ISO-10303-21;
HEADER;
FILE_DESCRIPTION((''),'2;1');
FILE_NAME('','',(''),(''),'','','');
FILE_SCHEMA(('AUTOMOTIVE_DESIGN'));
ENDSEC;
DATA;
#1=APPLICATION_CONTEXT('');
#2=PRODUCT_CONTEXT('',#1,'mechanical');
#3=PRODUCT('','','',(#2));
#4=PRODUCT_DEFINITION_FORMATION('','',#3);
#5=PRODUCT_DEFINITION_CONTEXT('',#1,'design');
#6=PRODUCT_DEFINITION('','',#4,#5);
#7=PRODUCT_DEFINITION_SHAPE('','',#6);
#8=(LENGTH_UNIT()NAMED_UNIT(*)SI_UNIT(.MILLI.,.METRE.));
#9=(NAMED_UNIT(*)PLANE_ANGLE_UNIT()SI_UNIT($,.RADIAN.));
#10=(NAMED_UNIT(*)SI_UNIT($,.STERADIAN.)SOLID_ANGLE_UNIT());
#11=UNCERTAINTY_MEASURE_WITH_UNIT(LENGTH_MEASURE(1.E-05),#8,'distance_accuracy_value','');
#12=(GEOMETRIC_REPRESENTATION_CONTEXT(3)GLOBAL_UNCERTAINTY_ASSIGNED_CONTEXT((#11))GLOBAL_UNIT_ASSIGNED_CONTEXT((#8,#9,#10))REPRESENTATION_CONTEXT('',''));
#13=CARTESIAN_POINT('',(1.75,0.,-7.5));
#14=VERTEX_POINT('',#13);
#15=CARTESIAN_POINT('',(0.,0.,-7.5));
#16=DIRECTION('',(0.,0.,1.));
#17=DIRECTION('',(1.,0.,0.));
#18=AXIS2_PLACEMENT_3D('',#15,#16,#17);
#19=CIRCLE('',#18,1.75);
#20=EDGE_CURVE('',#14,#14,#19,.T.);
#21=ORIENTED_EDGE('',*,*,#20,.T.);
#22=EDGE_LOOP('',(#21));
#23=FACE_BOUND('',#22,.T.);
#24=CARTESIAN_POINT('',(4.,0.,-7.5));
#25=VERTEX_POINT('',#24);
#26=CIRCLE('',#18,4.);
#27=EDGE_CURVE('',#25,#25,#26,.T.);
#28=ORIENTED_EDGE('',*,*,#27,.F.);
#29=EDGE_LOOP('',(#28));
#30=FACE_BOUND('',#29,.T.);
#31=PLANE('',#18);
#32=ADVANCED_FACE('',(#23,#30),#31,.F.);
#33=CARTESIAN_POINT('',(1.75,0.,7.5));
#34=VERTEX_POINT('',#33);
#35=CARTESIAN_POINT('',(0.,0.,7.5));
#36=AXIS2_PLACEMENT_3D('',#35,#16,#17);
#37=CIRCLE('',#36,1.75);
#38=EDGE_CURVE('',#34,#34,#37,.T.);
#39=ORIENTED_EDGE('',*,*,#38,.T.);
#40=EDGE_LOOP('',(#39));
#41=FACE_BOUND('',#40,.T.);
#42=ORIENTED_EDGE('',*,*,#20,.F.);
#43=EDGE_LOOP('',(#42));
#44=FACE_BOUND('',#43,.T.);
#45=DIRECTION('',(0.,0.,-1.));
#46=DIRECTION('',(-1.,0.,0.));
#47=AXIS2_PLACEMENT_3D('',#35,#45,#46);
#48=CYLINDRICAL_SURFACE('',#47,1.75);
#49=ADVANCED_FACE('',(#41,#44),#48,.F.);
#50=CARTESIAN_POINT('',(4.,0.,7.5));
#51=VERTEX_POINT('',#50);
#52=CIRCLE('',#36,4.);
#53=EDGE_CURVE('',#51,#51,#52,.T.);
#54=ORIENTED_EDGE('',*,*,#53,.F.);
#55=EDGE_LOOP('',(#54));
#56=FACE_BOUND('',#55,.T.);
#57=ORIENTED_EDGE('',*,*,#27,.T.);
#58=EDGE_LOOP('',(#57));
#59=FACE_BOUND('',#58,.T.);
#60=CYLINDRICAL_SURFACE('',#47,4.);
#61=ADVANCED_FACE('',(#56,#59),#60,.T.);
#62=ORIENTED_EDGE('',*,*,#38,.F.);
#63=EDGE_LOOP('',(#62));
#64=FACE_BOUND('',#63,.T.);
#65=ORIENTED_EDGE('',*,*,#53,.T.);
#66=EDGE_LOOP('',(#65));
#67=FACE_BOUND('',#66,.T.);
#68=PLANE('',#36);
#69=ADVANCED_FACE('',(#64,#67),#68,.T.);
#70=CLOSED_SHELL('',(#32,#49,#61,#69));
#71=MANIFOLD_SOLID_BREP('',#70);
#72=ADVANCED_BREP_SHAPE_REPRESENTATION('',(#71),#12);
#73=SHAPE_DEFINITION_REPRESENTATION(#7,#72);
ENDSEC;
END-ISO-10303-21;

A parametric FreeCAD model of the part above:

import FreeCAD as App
import Part
import Sketcher
Q = App.Units.Quantity

doc = App.newDocument("Part")
body = doc.addObject("PartDesign::Body", "Body")

# Sketch on XY plane
sketch1 = body.newObject("Sketcher::SketchObject", "Sketch")
sketch1.AttachmentSupport = (doc.getObject("XY_Plane"), [""])
sketch1.MapMode = "FlatFace"
sketch1.addGeometry([
    Part.Circle(App.Vector(0, 0, 0), App.Vector(0, 0, 1), 4),
    Part.Circle(App.Vector(0, 0, 0), App.Vector(0, 0, 1), 1.75),
], False)
sketch1.addConstraint([
    Sketcher.Constraint("Coincident", 0, 3, -1, 1),
    Sketcher.Constraint("Coincident", 1, 3, -1, 1),
    Sketcher.Constraint("Diameter", 0, Q("8 mm")),
    Sketcher.Constraint("Diameter", 1, Q("3.5 mm")),
])
pad1 = body.newObject("PartDesign::Pad", "Pad")
pad1.Profile = sketch1
pad1.Length = 15
pad1.Midplane = True

doc.recompute()
